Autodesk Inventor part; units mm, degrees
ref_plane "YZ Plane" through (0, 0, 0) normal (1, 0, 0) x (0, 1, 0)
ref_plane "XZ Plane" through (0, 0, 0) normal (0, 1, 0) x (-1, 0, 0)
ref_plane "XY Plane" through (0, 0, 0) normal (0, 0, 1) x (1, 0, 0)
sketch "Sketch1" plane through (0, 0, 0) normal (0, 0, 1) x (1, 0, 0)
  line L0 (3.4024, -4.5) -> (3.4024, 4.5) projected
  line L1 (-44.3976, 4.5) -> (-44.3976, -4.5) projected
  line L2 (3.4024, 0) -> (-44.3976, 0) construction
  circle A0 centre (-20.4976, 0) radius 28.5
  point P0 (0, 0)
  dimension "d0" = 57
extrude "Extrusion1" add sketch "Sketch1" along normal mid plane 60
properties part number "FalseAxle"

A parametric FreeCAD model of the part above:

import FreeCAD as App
import Part
import Sketcher

V = App.Vector

doc = App.newDocument("Part")
body = doc.addObject("PartDesign::Body", "Body")

sketch1 = body.newObject("Sketcher::SketchObject", "Sketch")
sketch1.AttachmentSupport = (doc.getObject("XY_Plane"), [""])
sketch1.MapMode = "FlatFace"
sketch1.addGeometry(Part.Circle(V(-20, 0, 0), V(0, 0, 1), 28), False)
sketch1.addConstraint([
    Sketcher.Constraint("PointOnObject", 0, 3, -1),
    Sketcher.Constraint("Diameter", 0, 57.0),
    Sketcher.Constraint("DistanceX", 0, 3, -1, 1, 20.4976),
])
pad1 = body.newObject("PartDesign::Pad", "Pad")
pad1.Profile = sketch1
pad1.Length = 60
pad1.Midplane = True

doc.recompute()
